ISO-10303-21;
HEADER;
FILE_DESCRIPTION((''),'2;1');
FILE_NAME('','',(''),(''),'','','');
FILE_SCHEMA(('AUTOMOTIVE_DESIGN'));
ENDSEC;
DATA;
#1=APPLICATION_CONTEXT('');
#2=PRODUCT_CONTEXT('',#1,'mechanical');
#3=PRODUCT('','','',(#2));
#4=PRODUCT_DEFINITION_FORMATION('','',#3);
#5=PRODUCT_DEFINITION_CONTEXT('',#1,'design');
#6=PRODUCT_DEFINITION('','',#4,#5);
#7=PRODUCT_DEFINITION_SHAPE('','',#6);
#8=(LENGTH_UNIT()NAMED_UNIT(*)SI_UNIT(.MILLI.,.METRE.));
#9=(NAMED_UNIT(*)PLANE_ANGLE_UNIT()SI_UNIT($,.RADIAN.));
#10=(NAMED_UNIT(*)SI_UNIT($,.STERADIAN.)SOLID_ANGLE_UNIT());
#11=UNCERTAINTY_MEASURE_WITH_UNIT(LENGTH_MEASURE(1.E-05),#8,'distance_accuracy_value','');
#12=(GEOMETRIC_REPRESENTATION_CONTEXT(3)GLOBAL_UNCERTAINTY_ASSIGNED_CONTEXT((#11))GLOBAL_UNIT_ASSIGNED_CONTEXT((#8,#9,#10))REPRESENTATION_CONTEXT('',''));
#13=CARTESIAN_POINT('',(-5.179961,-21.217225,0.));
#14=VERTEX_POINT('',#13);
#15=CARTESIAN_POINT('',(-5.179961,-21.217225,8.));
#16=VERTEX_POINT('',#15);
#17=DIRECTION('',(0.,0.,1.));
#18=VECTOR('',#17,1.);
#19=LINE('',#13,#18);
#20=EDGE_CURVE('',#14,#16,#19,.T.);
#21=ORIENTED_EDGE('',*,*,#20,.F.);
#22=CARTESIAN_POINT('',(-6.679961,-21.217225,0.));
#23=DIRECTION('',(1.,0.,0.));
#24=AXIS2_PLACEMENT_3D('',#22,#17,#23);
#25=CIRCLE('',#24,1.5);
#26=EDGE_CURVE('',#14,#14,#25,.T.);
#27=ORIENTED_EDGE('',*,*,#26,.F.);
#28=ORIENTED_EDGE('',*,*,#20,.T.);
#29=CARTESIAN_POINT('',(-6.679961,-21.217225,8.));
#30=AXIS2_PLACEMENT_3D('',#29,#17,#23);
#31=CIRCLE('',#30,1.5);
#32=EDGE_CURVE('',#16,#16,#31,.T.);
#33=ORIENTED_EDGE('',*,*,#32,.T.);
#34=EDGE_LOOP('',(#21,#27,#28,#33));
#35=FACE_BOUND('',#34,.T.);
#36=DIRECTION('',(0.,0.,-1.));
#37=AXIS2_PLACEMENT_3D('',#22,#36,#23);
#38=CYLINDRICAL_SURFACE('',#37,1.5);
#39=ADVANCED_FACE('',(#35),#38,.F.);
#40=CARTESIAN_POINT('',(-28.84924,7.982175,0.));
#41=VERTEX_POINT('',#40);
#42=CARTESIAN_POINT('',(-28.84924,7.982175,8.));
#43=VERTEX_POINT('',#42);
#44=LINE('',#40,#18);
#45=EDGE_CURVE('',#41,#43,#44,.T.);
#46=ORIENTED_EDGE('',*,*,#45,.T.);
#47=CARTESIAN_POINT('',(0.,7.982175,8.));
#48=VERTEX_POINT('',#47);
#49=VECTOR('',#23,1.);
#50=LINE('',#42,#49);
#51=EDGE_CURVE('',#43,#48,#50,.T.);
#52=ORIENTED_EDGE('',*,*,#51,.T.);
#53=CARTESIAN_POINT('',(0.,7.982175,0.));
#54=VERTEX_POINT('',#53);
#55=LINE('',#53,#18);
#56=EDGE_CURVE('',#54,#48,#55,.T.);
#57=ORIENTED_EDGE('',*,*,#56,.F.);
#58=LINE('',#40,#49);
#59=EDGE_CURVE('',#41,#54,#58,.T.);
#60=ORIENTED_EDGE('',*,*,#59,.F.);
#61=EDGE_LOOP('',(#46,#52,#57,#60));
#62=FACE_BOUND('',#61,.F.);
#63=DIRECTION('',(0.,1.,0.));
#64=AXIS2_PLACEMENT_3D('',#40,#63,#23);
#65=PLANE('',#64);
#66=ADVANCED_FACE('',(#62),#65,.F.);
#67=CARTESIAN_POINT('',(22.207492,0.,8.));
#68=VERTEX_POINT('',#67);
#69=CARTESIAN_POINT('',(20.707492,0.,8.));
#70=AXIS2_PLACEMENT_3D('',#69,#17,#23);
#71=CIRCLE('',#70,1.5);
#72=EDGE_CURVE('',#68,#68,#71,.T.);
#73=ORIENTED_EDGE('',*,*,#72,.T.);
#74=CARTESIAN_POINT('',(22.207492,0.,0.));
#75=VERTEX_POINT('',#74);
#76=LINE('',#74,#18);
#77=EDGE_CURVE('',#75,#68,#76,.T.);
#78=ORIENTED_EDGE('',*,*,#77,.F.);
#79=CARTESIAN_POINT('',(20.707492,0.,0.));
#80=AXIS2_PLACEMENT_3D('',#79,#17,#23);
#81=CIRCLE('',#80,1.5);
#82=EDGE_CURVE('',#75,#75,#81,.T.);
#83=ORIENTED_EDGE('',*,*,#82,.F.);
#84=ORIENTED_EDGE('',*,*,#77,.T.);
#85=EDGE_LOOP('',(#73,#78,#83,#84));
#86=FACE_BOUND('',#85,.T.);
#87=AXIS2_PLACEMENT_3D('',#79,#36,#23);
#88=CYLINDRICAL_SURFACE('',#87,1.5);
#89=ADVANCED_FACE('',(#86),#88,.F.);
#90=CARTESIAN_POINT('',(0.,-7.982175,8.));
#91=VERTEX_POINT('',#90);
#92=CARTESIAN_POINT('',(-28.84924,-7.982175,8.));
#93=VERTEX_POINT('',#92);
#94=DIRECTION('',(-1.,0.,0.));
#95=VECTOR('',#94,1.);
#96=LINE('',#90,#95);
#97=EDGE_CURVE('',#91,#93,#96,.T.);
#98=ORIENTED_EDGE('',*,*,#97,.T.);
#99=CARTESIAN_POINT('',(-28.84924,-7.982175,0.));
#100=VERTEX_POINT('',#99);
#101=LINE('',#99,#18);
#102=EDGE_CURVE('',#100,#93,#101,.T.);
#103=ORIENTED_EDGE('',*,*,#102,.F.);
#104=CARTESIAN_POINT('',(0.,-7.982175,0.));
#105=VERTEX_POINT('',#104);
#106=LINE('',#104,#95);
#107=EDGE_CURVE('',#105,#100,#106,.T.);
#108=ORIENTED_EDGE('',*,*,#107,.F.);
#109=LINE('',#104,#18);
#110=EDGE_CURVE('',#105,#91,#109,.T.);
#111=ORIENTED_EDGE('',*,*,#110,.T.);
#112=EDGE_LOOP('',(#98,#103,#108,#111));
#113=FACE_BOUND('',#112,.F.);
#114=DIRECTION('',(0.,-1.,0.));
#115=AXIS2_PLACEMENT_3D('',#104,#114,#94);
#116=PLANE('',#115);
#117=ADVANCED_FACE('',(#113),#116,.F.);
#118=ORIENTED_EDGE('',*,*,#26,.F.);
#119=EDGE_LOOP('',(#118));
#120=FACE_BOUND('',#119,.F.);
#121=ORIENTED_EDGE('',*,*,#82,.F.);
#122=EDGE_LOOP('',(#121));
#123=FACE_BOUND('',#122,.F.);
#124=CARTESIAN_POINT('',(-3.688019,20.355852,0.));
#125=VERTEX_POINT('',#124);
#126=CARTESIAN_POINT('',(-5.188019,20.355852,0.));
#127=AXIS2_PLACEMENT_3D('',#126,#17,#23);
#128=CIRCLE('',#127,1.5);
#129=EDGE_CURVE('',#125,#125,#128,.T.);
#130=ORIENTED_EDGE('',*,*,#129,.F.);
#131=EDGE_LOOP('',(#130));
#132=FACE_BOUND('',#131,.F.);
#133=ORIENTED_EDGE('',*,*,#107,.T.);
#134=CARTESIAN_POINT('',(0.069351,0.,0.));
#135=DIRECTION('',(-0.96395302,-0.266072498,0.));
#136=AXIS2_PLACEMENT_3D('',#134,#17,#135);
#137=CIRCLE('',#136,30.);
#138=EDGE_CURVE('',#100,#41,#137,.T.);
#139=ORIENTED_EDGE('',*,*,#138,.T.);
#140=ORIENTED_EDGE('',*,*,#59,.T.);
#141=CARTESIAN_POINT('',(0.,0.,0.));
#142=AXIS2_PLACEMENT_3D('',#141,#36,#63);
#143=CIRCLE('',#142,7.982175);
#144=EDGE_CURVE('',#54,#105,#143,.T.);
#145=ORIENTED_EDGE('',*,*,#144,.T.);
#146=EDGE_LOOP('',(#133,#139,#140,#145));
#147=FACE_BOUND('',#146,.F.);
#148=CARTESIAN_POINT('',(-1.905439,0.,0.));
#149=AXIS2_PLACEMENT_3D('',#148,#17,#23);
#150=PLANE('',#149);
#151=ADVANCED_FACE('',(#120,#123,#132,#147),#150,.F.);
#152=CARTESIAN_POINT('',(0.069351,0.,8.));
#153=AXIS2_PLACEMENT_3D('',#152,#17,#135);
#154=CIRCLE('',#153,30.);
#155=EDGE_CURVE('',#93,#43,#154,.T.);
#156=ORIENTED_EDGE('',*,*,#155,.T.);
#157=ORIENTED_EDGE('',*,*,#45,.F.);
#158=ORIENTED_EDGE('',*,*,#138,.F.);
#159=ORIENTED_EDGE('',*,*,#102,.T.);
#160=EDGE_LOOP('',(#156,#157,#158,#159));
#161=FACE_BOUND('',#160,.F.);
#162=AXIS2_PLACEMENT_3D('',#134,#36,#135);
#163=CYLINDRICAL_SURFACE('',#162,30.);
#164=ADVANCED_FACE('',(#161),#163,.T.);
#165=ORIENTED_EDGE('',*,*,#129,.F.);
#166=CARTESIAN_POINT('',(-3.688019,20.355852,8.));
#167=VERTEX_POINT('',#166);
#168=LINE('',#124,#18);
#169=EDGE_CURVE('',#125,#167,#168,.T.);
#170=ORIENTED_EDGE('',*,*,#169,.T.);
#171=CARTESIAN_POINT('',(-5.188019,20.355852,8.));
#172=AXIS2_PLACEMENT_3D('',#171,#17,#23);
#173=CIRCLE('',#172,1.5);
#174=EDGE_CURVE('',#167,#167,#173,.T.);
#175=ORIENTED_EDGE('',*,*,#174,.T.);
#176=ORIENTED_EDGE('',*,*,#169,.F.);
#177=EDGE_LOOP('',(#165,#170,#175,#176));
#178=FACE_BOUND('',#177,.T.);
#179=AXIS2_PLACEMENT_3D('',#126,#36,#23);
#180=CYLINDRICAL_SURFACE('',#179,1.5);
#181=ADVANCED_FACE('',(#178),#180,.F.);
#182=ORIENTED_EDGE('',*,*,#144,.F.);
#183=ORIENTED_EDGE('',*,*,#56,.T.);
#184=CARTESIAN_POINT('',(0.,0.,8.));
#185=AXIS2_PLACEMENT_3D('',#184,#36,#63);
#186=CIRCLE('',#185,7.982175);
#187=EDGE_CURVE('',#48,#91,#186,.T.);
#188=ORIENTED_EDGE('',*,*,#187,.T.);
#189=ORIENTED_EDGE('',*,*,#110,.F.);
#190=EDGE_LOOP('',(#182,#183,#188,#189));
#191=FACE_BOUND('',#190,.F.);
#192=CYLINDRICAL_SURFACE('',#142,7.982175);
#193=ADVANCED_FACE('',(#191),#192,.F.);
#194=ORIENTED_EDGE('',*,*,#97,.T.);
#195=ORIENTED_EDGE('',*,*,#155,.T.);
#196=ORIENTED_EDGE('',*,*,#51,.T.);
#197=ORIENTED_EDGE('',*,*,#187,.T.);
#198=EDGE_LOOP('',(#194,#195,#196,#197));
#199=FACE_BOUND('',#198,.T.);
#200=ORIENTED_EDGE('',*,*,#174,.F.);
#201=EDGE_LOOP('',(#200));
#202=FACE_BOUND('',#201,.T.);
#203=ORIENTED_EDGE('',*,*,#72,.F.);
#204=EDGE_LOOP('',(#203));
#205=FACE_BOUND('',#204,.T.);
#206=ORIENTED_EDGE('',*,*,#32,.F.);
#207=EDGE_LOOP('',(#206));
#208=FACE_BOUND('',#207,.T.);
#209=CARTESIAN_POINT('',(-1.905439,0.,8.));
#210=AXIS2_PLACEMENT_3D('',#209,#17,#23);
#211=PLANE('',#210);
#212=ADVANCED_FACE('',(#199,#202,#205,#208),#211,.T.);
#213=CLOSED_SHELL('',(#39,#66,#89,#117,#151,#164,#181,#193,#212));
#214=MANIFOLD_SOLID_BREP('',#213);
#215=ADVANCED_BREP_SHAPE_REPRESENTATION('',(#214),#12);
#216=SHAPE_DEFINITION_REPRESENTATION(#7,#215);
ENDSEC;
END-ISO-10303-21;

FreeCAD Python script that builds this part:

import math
import FreeCAD as App
import Part
import Sketcher
from FreeCAD import Vector
Q = App.Units.Quantity

doc = App.newDocument("Part")
body = doc.addObject("PartDesign::Body", "Body")

# Sketch on XY plane
sketch1 = doc.addObject("Sketcher::SketchObject", "Sketch")
body.addObject(sketch1)
sketch1.AttachmentSupport = (doc.XY_Plane, [""])
sketch1.MapMode = "FlatFace"
sketch1.addGeometry([
    Part.ArcOfCircle(Part.Circle(Vector(0, 0, 0), Vector(0, 0, 1), 8), math.radians(-90), math.radians(90)),  # 0
    Part.LineSegment(Vector(0, -8, 0), Vector(-28.8, -8, 0)),  # 1
    Part.ArcOfCircle(Part.Circle(Vector(0.1, 0, 0), Vector(0, 0, 1), 30), math.radians(-165), math.radians(165)),  # 2
    Part.LineSegment(Vector(-28.8, 8, 0), Vector(0, 8, 0)),  # 3
    Part.Circle(Vector(-6.7, -21.2, 0), Vector(0, 0, 1), 1.5),  # 4
    Part.Circle(Vector(-5.2, 20.4, 0), Vector(0, 0, 1), 1.5),  # 5
    Part.Circle(Vector(20.7, 0, 0), Vector(0, 0, 1), 1.5),  # 6
], False)
sketch1.addConstraint([
    Sketcher.Constraint("Tangent", 0, 1, 1, 1),
    Sketcher.Constraint("Coincident", 1, 2, 2, 1),
    Sketcher.Constraint("Coincident", 2, 2, 3, 1),
    Sketcher.Constraint("Tangent", 3, 2, 0, 2),
    Sketcher.Constraint("Horizontal", 1),
    Sketcher.Constraint("Horizontal", 3),
    Sketcher.Constraint("Coincident", 0, 3, -1, 1),
    Sketcher.Constraint("Equal", 4, 5),
    Sketcher.Constraint("Equal", 5, 6),
    Sketcher.Constraint("PointOnObject", 2, 3, -1),
    Sketcher.Constraint("PointOnObject", 6, 3, -1),
    Sketcher.Constraint("Diameter", 4, Q("3 mm")),
    Sketcher.Constraint("Radius", 2, Q("30 mm")),
    Sketcher.Constraint("Radius", 0, Q("7.982175 mm")),
    Sketcher.Constraint("DistanceX", 1, 2, 1, 1, Q("28.84924 mm")),
    Sketcher.Constraint("DistanceX", 4, 3, -1, 1, Q("6.679961 mm")),
    Sketcher.Constraint("DistanceX", 5, 3, -1, 1, Q("5.188019 mm")),
    Sketcher.Constraint("DistanceY", -1, 1, 5, 3, Q("20.355852 mm")),
    Sketcher.Constraint("DistanceX", -1, 1, 6, 3, Q("20.707492 mm")),
    Sketcher.Constraint("DistanceY", 4, 3, 0, 1, Q("13.23505 mm")),
])
pad1 = doc.addObject("PartDesign::Pad", "Pad")
body.addObject(pad1)
pad1.Profile = sketch1
pad1.Length = 8

doc.recompute()
